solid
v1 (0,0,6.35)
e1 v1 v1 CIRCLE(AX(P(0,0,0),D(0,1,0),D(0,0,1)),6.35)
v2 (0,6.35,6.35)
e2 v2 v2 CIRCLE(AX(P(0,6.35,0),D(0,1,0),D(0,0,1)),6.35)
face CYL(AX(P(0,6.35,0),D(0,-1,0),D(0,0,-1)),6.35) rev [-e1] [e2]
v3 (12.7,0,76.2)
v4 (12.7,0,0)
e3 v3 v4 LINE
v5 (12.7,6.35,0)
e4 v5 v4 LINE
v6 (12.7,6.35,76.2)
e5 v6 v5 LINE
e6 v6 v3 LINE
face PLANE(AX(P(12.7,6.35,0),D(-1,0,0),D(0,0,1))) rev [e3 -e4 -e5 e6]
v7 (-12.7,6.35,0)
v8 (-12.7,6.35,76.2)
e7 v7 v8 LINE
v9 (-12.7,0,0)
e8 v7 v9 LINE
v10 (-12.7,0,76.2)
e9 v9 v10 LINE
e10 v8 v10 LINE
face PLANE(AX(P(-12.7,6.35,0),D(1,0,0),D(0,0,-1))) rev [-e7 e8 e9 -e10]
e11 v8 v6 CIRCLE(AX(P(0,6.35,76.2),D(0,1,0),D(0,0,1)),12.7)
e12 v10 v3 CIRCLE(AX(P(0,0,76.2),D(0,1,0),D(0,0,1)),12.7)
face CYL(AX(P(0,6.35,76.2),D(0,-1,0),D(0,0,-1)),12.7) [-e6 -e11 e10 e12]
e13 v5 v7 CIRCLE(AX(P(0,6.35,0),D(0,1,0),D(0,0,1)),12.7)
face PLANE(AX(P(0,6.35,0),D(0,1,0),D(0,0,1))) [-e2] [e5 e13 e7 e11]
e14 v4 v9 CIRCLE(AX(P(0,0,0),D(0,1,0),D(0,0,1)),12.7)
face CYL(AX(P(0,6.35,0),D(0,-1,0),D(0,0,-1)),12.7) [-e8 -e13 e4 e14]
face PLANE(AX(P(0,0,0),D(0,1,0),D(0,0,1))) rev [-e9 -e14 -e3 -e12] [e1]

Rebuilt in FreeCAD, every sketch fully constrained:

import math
import FreeCAD as App
import Part
import Sketcher
from FreeCAD import Vector
Q = App.Units.Quantity

doc = App.newDocument("Part")
body = doc.addObject("PartDesign::Body", "Body")

sketch1 = body.newObject("Sketcher::SketchObject", "Sketch")
sketch1.AttachmentSupport = (doc.getObject("XZ_Plane"), [""])
sketch1.MapMode = "FlatFace"
sketch1.addGeometry([
    Part.LineSegment(Vector(13, 76, 0), Vector(13, 0, 0)),
    Part.ArcOfCircle(Part.Circle(Vector(0, 0, 0), Vector(0, 0, 1), 13), math.radians(180), math.radians(360)),
    Part.LineSegment(Vector(-13, 0, 0), Vector(-13, 76, 0)),
    Part.ArcOfCircle(Part.Circle(Vector(0, 76, 0), Vector(0, 0, 1), 13), math.radians(0), math.radians(180)),
    Part.Circle(Vector(0, 0, 0), Vector(0, 0, 1), 6),
], False)
sketch1.addConstraint([
    Sketcher.Constraint("Tangent", 0, 2, 1, 2),
    Sketcher.Constraint("Tangent", 1, 1, 2, 1),
    Sketcher.Constraint("Tangent", 2, 2, 3, 2),
    Sketcher.Constraint("Tangent", 3, 1, 0, 1),
    Sketcher.Constraint("Vertical", 0),
    Sketcher.Constraint("Vertical", 2),
    Sketcher.Constraint("Coincident", 1, 3, -1, 1),
    Sketcher.Constraint("Coincident", 4, 3, -1, 1),
    Sketcher.Constraint("Diameter", 4, Q("0.5 in")),
    Sketcher.Constraint("Radius", 1, Q("0.5 in")),
    Sketcher.Constraint("DistanceY", 0, 2, 0, 1, Q("3 in")),
])
pad1 = body.newObject("PartDesign::Pad", "Pad")
pad1.Profile = sketch1
pad1.Length = Q("0.25 in")
pad1.Reversed = True

doc.recompute()
